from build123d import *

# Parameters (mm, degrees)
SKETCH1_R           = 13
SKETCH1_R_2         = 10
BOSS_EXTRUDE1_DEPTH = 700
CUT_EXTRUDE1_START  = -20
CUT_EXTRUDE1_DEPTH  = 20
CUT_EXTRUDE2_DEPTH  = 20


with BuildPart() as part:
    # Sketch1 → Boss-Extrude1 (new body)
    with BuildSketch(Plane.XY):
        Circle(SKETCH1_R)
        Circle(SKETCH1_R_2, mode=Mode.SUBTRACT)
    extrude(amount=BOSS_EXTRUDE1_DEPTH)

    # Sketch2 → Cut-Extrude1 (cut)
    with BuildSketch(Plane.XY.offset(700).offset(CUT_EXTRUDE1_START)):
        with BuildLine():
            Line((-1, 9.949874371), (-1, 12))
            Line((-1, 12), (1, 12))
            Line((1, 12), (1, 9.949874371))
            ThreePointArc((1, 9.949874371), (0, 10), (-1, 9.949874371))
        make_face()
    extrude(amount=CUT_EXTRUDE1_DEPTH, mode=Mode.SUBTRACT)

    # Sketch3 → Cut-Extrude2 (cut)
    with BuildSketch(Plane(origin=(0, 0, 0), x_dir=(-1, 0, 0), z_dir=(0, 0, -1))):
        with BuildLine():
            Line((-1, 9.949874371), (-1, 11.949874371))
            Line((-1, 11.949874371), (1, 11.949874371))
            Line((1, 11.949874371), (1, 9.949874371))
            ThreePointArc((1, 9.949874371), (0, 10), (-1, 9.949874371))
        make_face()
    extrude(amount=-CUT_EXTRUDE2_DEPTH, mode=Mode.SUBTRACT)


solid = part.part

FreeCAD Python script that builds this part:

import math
import FreeCAD as App
import Part
import Sketcher

V = App.Vector
Q = App.Units.Quantity

doc = App.newDocument("Part")
body = doc.addObject("PartDesign::Body", "Body")

# Sketch on XY plane
sketch1 = body.newObject("Sketcher::SketchObject", "Sketch")
sketch1.AttachmentSupport = (doc.getObject("XY_Plane"), [""])
sketch1.MapMode = "FlatFace"
sketch1.addGeometry([
    Part.Circle(V(0, 0, 0), V(0, 0, 1), 13),
    Part.Circle(V(0, 0, 0), V(0, 0, 1), 10),
], False)
sketch1.addConstraint([
    Sketcher.Constraint("Coincident", 0, 3, -1, 1),
    Sketcher.Constraint("Coincident", 1, 3, -1, 1),
    Sketcher.Constraint("Diameter", 0, Q("26 mm")),
    Sketcher.Constraint("Diameter", 1, Q("20 mm")),
])
pad1 = body.newObject("PartDesign::Pad", "Pad")
pad1.Profile = sketch1
pad1.Length = 700

# Sketch on XY plane
sketch2 = body.newObject("Sketcher::SketchObject", "Sketch001")
sketch2.AttachmentSupport = (doc.getObject("XY_Plane"), [""])
sketch2.MapMode = "FlatFace"
sketch2.AttachmentOffset = App.Placement(V(0, 0, 680), App.Rotation())
sketch2.addGeometry([
    Part.LineSegment(V(-1, 12, 0), V(-1, 9.9, 0)),
    Part.ArcOfCircle(Part.Circle(V(0, 0, 0), V(0, 0, 1), 10), math.radians(84.26), math.radians(95.74)),
    Part.LineSegment(V(1, 9.9, 0), V(1, 12, 0)),
    Part.LineSegment(V(1, 12, 0), V(-1, 12, 0)),
], False)
sketch2.addConstraint([
    Sketcher.Constraint("Coincident", 0, 2, 1, 2),
    Sketcher.Constraint("Coincident", 1, 1, 2, 1),
    Sketcher.Constraint("Coincident", 2, 2, 3, 1),
    Sketcher.Constraint("Coincident", 3, 2, 0, 1),
    Sketcher.Constraint("Vertical", 0),
    Sketcher.Constraint("Vertical", 2),
    Sketcher.Constraint("Horizontal", 3),
    Sketcher.Constraint("Coincident", 1, 3, -1, 1),
    Sketcher.Constraint("Horizontal", 0, 2, 1, 1),
    Sketcher.Constraint("Radius", 1, Q("10 mm")),
    Sketcher.Constraint("DistanceX", 3, 2, 3, 1, Q("2 mm")),
    Sketcher.Constraint("DistanceY", -1, 1, 2, 2, Q("12 mm")),
])
pocket1 = body.newObject("PartDesign::Pocket", "Pocket")
pocket1.Profile = sketch2
pocket1.Length = 20
pocket1.Reversed = True

# Sketch on XY plane
sketch3 = body.newObject("Sketcher::SketchObject", "Sketch002")
sketch3.AttachmentSupport = (doc.getObject("XY_Plane"), [""])
sketch3.MapMode = "FlatFace"
sketch3.addGeometry([
    Part.LineSegment(V(1, 11.9, 0), V(1, 9.9, 0)),
    Part.ArcOfCircle(Part.Circle(V(0, 0, 0), V(0, 0, 1), 10), math.radians(84.26), math.radians(95.74)),
    Part.LineSegment(V(-1, 9.9, 0), V(-1, 11.9, 0)),
    Part.LineSegment(V(-1, 11.9, 0), V(1, 11.9, 0)),
], False)
sketch3.addConstraint([
    Sketcher.Constraint("Coincident", 0, 2, 1, 1),
    Sketcher.Constraint("Coincident", 1, 2, 2, 1),
    Sketcher.Constraint("Coincident", 2, 2, 3, 1),
    Sketcher.Constraint("Coincident", 3, 2, 0, 1),
    Sketcher.Constraint("Vertical", 0),
    Sketcher.Constraint("Vertical", 2),
    Sketcher.Constraint("Horizontal", 3),
    Sketcher.Constraint("Coincident", 1, 3, -1, 1),
    Sketcher.Constraint("Horizontal", 0, 2, 1, 2),
    Sketcher.Constraint("Equal", 3, 0),
    Sketcher.Constraint("Radius", 1, Q("10 mm")),
    Sketcher.Constraint("DistanceX", 3, 1, 3, 2, Q("2 mm")),
])
pocket2 = body.newObject("PartDesign::Pocket", "Pocket001")
pocket2.Profile = sketch3
pocket2.Length = 20
pocket2.Reversed = True

doc.recompute()
